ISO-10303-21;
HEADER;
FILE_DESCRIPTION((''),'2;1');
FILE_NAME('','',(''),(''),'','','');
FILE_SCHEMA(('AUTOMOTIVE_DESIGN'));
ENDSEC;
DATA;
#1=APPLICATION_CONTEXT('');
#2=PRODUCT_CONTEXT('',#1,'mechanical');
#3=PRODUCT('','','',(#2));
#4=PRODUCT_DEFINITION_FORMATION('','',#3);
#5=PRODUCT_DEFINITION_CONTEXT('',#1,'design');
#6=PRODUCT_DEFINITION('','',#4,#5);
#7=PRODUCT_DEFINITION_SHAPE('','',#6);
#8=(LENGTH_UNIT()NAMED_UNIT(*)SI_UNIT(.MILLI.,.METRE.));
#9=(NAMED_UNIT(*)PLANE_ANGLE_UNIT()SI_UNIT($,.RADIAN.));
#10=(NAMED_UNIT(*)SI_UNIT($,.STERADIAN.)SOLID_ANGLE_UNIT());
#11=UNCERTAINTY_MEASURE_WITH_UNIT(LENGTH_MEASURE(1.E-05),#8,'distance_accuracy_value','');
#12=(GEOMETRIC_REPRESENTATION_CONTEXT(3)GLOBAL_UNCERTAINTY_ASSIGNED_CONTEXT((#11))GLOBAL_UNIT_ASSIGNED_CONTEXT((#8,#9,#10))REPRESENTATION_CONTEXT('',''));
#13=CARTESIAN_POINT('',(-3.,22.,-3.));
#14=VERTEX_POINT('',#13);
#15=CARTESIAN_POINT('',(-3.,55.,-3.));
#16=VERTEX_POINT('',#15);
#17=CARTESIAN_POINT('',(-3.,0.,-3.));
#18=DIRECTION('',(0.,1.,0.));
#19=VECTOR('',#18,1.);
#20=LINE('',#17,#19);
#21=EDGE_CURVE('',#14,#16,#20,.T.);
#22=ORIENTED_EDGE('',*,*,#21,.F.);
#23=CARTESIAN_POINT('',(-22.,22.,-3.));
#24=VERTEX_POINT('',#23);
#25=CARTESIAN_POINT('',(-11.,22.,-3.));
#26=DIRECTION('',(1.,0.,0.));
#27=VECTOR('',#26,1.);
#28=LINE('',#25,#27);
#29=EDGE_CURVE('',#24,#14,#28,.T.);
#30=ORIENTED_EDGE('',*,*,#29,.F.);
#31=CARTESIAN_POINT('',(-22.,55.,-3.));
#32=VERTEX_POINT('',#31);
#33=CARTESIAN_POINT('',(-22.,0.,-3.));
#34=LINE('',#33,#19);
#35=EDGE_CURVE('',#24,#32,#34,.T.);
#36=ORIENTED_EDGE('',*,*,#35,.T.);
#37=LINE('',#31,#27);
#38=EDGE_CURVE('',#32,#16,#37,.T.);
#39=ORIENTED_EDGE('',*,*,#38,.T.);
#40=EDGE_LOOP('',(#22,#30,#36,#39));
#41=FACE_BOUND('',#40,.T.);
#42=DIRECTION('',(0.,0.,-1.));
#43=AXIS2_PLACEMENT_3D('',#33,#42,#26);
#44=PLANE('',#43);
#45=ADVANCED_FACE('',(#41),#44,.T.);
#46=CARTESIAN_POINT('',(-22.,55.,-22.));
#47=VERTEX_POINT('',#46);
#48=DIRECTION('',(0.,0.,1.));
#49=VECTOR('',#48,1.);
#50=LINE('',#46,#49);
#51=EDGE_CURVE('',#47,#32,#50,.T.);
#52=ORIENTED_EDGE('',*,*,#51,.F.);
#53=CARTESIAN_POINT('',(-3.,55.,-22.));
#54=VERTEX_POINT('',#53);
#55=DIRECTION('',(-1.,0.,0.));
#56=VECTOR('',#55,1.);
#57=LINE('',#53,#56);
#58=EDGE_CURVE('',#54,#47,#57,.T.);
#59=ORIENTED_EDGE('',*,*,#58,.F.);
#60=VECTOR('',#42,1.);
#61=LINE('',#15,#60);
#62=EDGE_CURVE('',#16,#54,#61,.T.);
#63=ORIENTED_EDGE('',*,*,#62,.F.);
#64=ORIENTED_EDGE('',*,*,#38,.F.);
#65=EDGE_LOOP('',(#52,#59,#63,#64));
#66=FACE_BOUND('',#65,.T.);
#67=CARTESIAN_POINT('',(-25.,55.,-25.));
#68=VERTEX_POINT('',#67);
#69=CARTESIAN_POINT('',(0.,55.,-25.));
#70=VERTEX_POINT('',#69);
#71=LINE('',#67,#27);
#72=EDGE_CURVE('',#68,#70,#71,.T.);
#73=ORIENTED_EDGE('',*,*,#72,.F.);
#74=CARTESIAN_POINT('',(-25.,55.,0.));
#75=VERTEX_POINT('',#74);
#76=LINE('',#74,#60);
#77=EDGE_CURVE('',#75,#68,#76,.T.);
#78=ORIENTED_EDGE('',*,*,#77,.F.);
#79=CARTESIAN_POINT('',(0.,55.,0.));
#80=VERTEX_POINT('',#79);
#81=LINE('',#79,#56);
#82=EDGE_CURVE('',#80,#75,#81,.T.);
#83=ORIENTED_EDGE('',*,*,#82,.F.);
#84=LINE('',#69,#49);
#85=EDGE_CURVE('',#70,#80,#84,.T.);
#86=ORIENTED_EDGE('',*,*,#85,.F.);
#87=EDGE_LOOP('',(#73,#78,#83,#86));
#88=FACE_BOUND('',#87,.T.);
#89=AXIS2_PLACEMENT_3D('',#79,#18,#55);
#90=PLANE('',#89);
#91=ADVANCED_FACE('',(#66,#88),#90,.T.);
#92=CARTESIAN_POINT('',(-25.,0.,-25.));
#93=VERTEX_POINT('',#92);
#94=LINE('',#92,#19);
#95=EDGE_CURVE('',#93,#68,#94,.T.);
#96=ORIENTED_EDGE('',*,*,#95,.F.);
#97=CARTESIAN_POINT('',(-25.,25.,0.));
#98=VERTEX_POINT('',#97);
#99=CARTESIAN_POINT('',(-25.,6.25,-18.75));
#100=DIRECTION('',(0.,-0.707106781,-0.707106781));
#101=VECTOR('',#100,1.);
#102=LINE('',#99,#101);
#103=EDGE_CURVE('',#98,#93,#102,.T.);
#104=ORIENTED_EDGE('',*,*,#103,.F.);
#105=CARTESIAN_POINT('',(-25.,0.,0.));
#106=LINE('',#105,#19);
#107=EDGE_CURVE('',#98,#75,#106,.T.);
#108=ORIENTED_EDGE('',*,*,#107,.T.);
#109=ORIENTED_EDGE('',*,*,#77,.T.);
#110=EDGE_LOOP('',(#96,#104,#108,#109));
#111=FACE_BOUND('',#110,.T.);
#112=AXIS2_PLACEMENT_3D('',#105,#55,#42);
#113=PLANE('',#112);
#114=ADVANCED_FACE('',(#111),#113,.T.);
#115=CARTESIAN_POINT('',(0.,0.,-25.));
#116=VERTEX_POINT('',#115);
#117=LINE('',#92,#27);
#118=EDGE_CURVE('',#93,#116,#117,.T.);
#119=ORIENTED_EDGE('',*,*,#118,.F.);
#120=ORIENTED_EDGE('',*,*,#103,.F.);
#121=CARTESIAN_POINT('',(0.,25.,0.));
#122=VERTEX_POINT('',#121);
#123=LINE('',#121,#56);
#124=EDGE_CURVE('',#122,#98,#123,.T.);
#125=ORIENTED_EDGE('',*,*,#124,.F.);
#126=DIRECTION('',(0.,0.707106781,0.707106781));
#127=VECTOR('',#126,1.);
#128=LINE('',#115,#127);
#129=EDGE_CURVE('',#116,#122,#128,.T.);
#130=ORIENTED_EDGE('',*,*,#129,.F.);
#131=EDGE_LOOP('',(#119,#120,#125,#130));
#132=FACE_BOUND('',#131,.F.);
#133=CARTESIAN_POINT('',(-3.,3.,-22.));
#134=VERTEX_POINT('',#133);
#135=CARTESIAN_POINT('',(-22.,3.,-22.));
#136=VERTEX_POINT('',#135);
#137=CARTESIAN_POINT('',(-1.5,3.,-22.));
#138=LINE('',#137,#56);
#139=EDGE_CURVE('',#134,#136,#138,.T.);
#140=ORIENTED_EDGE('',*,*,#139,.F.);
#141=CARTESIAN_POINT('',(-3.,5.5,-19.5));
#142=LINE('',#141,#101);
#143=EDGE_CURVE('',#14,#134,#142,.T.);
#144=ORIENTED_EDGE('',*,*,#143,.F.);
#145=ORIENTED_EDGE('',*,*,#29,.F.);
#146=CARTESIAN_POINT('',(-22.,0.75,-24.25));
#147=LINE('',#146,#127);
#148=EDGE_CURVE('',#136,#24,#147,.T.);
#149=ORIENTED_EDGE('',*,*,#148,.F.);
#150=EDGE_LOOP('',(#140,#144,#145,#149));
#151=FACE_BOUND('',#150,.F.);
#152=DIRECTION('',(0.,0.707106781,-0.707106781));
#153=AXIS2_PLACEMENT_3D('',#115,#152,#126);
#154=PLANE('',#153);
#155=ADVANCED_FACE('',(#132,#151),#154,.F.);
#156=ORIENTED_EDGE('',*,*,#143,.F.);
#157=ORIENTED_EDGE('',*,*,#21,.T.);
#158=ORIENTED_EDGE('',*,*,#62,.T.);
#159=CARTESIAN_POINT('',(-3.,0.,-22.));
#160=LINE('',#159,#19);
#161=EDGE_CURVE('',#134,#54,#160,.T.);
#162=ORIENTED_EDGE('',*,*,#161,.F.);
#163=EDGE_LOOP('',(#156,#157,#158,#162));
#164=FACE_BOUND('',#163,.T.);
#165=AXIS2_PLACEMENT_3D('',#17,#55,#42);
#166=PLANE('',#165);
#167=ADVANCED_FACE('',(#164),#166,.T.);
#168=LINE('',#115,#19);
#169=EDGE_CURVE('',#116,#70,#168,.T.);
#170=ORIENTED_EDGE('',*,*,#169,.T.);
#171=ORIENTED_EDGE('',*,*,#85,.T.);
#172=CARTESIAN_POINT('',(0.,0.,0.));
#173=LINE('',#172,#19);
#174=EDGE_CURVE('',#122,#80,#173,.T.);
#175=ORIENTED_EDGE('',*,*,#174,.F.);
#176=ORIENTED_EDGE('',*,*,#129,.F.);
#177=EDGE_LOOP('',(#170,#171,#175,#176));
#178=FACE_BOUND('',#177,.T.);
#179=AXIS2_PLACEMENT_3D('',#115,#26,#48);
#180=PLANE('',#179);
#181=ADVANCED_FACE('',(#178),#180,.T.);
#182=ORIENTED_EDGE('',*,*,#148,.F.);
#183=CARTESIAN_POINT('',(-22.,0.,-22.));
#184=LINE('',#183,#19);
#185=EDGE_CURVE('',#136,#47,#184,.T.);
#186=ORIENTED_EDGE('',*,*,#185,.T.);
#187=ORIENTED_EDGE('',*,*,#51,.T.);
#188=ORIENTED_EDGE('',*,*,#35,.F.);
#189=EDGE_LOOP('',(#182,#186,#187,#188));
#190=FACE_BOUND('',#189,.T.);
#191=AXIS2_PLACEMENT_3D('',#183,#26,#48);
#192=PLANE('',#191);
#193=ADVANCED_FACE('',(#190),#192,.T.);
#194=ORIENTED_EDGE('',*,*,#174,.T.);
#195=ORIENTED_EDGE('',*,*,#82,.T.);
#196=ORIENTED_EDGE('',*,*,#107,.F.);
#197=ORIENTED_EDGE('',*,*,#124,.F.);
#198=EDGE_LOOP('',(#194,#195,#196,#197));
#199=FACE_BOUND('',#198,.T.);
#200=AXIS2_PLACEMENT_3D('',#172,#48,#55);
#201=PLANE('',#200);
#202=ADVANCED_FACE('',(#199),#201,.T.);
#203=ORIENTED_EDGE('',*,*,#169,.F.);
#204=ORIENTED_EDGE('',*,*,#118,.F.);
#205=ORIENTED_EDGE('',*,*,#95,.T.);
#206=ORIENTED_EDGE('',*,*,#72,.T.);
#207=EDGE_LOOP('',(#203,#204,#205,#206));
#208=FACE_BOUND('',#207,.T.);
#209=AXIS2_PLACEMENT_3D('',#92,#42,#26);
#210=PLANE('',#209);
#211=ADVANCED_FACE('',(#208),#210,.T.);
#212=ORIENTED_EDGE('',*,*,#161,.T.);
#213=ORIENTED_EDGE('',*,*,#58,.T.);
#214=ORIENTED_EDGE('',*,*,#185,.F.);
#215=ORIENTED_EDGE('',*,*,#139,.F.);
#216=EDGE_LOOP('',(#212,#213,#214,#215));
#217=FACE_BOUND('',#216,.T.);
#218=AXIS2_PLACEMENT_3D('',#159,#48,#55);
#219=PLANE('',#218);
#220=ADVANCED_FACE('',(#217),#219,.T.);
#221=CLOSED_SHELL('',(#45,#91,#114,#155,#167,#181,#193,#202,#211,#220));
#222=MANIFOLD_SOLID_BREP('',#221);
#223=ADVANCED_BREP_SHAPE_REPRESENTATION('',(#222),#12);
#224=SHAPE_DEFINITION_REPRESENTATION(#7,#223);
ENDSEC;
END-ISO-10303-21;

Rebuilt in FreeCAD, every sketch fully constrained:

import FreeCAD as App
import Part
import Sketcher
from FreeCAD import Vector

doc = App.newDocument("Part")
body = doc.addObject("PartDesign::Body", "Body")

# Sketch on XZ plane
sketch1 = body.newObject("Sketcher::SketchObject", "Sketch")
sketch1.AttachmentSupport = (doc.getObject("XZ_Plane"), [""])
sketch1.MapMode = "FlatFace"
sketch1.addGeometry(Part.LineSegment(Vector(-25, 0, 0), Vector(0, 0, 0)), False)
sketch1.addGeometry(Part.LineSegment(Vector(0, 0, 0), Vector(0, -25, 0)), False)
sketch1.addGeometry(Part.LineSegment(Vector(0, -25, 0), Vector(-25, -25, 0)), False)
sketch1.addGeometry(Part.LineSegment(Vector(-25, -25, 0), Vector(-25, 0, 0)), False)
sketch1.addGeometry(Part.LineSegment(Vector(-22, -3, 0), Vector(-22, -22, 0)), False)
sketch1.addGeometry(Part.LineSegment(Vector(-22, -22, 0), Vector(-3, -22, 0)), False)
sketch1.addGeometry(Part.LineSegment(Vector(-3, -22, 0), Vector(-3, -3, 0)), False)
sketch1.addGeometry(Part.LineSegment(Vector(-3, -3, 0), Vector(-22, -3, 0)), False)
sketch1.addConstraint(Sketcher.Constraint("Coincident", 0, 2, 1, 1))
sketch1.addConstraint(Sketcher.Constraint("Coincident", 1, 2, 2, 1))
sketch1.addConstraint(Sketcher.Constraint("Coincident", 2, 2, 3, 1))
sketch1.addConstraint(Sketcher.Constraint("Coincident", 3, 2, 0, 1))
sketch1.addConstraint(Sketcher.Constraint("Coincident", 4, 2, 5, 1))
sketch1.addConstraint(Sketcher.Constraint("Coincident", 5, 2, 6, 1))
sketch1.addConstraint(Sketcher.Constraint("Coincident", 6, 2, 7, 1))
sketch1.addConstraint(Sketcher.Constraint("Coincident", 7, 2, 4, 1))
sketch1.addConstraint(Sketcher.Constraint("Horizontal", 0))
sketch1.addConstraint(Sketcher.Constraint("Vertical", 1))
sketch1.addConstraint(Sketcher.Constraint("Horizontal", 2))
sketch1.addConstraint(Sketcher.Constraint("Vertical", 3))
sketch1.addConstraint(Sketcher.Constraint("Vertical", 4))
sketch1.addConstraint(Sketcher.Constraint("Horizontal", 5))
sketch1.addConstraint(Sketcher.Constraint("Vertical", 6))
sketch1.addConstraint(Sketcher.Constraint("Horizontal", 7))
sketch1.addConstraint(Sketcher.Constraint("Coincident", 0, 2, -1, 1))
sketch1.addConstraint(Sketcher.Constraint("Equal", 2, 1))
sketch1.addConstraint(Sketcher.Constraint("Equal", 7, 4))
sketch1.addConstraint(Sketcher.Constraint("DistanceX", 0, 1, 0, 2, 25.0))
sketch1.addConstraint(Sketcher.Constraint("DistanceX", 5, 2, -1, 1, 3.0))
sketch1.addConstraint(Sketcher.Constraint("DistanceY", 6, 2, -1, 1, 3.0))
sketch1.addConstraint(Sketcher.Constraint("DistanceX", 2, 2, 4, 2, 3.0))
pad1 = body.newObject("PartDesign::Pad", "Pad")
pad1.Profile = sketch1
pad1.Length = 55
pad1.Reversed = True

# Sketch on YZ plane
sketch2 = body.newObject("Sketcher::SketchObject", "Sketch001")
sketch2.AttachmentSupport = (doc.getObject("YZ_Plane"), [""])
sketch2.MapMode = "FlatFace"
sketch2.addGeometry(Part.LineSegment(Vector(25, 0, 0), Vector(0, 0, 0)), False)
sketch2.addGeometry(Part.LineSegment(Vector(0, 0, 0), Vector(0, -25, 0)), False)
sketch2.addGeometry(Part.LineSegment(Vector(0, -25, 0), Vector(25, 0, 0)), False)
sketch2.addConstraint(Sketcher.Constraint("Coincident", 0, 2, 1, 1))
sketch2.addConstraint(Sketcher.Constraint("Coincident", 1, 2, 2, 1))
sketch2.addConstraint(Sketcher.Constraint("Coincident", 2, 2, 0, 1))
sketch2.addConstraint(Sketcher.Constraint("Horizontal", 0))
sketch2.addConstraint(Sketcher.Constraint("Vertical", 1))
sketch2.addConstraint(Sketcher.Constraint("Coincident", 0, 2, -1, 1))
sketch2.addConstraint(Sketcher.Constraint("Equal", 0, 1))
sketch2.addConstraint(Sketcher.Constraint("DistanceX", 0, 2, 0, 1, 25.0))
pocket1 = body.newObject("PartDesign::Pocket", "Pocket")
pocket1.Profile = sketch2
pocket1.Length = 55

doc.recompute()
